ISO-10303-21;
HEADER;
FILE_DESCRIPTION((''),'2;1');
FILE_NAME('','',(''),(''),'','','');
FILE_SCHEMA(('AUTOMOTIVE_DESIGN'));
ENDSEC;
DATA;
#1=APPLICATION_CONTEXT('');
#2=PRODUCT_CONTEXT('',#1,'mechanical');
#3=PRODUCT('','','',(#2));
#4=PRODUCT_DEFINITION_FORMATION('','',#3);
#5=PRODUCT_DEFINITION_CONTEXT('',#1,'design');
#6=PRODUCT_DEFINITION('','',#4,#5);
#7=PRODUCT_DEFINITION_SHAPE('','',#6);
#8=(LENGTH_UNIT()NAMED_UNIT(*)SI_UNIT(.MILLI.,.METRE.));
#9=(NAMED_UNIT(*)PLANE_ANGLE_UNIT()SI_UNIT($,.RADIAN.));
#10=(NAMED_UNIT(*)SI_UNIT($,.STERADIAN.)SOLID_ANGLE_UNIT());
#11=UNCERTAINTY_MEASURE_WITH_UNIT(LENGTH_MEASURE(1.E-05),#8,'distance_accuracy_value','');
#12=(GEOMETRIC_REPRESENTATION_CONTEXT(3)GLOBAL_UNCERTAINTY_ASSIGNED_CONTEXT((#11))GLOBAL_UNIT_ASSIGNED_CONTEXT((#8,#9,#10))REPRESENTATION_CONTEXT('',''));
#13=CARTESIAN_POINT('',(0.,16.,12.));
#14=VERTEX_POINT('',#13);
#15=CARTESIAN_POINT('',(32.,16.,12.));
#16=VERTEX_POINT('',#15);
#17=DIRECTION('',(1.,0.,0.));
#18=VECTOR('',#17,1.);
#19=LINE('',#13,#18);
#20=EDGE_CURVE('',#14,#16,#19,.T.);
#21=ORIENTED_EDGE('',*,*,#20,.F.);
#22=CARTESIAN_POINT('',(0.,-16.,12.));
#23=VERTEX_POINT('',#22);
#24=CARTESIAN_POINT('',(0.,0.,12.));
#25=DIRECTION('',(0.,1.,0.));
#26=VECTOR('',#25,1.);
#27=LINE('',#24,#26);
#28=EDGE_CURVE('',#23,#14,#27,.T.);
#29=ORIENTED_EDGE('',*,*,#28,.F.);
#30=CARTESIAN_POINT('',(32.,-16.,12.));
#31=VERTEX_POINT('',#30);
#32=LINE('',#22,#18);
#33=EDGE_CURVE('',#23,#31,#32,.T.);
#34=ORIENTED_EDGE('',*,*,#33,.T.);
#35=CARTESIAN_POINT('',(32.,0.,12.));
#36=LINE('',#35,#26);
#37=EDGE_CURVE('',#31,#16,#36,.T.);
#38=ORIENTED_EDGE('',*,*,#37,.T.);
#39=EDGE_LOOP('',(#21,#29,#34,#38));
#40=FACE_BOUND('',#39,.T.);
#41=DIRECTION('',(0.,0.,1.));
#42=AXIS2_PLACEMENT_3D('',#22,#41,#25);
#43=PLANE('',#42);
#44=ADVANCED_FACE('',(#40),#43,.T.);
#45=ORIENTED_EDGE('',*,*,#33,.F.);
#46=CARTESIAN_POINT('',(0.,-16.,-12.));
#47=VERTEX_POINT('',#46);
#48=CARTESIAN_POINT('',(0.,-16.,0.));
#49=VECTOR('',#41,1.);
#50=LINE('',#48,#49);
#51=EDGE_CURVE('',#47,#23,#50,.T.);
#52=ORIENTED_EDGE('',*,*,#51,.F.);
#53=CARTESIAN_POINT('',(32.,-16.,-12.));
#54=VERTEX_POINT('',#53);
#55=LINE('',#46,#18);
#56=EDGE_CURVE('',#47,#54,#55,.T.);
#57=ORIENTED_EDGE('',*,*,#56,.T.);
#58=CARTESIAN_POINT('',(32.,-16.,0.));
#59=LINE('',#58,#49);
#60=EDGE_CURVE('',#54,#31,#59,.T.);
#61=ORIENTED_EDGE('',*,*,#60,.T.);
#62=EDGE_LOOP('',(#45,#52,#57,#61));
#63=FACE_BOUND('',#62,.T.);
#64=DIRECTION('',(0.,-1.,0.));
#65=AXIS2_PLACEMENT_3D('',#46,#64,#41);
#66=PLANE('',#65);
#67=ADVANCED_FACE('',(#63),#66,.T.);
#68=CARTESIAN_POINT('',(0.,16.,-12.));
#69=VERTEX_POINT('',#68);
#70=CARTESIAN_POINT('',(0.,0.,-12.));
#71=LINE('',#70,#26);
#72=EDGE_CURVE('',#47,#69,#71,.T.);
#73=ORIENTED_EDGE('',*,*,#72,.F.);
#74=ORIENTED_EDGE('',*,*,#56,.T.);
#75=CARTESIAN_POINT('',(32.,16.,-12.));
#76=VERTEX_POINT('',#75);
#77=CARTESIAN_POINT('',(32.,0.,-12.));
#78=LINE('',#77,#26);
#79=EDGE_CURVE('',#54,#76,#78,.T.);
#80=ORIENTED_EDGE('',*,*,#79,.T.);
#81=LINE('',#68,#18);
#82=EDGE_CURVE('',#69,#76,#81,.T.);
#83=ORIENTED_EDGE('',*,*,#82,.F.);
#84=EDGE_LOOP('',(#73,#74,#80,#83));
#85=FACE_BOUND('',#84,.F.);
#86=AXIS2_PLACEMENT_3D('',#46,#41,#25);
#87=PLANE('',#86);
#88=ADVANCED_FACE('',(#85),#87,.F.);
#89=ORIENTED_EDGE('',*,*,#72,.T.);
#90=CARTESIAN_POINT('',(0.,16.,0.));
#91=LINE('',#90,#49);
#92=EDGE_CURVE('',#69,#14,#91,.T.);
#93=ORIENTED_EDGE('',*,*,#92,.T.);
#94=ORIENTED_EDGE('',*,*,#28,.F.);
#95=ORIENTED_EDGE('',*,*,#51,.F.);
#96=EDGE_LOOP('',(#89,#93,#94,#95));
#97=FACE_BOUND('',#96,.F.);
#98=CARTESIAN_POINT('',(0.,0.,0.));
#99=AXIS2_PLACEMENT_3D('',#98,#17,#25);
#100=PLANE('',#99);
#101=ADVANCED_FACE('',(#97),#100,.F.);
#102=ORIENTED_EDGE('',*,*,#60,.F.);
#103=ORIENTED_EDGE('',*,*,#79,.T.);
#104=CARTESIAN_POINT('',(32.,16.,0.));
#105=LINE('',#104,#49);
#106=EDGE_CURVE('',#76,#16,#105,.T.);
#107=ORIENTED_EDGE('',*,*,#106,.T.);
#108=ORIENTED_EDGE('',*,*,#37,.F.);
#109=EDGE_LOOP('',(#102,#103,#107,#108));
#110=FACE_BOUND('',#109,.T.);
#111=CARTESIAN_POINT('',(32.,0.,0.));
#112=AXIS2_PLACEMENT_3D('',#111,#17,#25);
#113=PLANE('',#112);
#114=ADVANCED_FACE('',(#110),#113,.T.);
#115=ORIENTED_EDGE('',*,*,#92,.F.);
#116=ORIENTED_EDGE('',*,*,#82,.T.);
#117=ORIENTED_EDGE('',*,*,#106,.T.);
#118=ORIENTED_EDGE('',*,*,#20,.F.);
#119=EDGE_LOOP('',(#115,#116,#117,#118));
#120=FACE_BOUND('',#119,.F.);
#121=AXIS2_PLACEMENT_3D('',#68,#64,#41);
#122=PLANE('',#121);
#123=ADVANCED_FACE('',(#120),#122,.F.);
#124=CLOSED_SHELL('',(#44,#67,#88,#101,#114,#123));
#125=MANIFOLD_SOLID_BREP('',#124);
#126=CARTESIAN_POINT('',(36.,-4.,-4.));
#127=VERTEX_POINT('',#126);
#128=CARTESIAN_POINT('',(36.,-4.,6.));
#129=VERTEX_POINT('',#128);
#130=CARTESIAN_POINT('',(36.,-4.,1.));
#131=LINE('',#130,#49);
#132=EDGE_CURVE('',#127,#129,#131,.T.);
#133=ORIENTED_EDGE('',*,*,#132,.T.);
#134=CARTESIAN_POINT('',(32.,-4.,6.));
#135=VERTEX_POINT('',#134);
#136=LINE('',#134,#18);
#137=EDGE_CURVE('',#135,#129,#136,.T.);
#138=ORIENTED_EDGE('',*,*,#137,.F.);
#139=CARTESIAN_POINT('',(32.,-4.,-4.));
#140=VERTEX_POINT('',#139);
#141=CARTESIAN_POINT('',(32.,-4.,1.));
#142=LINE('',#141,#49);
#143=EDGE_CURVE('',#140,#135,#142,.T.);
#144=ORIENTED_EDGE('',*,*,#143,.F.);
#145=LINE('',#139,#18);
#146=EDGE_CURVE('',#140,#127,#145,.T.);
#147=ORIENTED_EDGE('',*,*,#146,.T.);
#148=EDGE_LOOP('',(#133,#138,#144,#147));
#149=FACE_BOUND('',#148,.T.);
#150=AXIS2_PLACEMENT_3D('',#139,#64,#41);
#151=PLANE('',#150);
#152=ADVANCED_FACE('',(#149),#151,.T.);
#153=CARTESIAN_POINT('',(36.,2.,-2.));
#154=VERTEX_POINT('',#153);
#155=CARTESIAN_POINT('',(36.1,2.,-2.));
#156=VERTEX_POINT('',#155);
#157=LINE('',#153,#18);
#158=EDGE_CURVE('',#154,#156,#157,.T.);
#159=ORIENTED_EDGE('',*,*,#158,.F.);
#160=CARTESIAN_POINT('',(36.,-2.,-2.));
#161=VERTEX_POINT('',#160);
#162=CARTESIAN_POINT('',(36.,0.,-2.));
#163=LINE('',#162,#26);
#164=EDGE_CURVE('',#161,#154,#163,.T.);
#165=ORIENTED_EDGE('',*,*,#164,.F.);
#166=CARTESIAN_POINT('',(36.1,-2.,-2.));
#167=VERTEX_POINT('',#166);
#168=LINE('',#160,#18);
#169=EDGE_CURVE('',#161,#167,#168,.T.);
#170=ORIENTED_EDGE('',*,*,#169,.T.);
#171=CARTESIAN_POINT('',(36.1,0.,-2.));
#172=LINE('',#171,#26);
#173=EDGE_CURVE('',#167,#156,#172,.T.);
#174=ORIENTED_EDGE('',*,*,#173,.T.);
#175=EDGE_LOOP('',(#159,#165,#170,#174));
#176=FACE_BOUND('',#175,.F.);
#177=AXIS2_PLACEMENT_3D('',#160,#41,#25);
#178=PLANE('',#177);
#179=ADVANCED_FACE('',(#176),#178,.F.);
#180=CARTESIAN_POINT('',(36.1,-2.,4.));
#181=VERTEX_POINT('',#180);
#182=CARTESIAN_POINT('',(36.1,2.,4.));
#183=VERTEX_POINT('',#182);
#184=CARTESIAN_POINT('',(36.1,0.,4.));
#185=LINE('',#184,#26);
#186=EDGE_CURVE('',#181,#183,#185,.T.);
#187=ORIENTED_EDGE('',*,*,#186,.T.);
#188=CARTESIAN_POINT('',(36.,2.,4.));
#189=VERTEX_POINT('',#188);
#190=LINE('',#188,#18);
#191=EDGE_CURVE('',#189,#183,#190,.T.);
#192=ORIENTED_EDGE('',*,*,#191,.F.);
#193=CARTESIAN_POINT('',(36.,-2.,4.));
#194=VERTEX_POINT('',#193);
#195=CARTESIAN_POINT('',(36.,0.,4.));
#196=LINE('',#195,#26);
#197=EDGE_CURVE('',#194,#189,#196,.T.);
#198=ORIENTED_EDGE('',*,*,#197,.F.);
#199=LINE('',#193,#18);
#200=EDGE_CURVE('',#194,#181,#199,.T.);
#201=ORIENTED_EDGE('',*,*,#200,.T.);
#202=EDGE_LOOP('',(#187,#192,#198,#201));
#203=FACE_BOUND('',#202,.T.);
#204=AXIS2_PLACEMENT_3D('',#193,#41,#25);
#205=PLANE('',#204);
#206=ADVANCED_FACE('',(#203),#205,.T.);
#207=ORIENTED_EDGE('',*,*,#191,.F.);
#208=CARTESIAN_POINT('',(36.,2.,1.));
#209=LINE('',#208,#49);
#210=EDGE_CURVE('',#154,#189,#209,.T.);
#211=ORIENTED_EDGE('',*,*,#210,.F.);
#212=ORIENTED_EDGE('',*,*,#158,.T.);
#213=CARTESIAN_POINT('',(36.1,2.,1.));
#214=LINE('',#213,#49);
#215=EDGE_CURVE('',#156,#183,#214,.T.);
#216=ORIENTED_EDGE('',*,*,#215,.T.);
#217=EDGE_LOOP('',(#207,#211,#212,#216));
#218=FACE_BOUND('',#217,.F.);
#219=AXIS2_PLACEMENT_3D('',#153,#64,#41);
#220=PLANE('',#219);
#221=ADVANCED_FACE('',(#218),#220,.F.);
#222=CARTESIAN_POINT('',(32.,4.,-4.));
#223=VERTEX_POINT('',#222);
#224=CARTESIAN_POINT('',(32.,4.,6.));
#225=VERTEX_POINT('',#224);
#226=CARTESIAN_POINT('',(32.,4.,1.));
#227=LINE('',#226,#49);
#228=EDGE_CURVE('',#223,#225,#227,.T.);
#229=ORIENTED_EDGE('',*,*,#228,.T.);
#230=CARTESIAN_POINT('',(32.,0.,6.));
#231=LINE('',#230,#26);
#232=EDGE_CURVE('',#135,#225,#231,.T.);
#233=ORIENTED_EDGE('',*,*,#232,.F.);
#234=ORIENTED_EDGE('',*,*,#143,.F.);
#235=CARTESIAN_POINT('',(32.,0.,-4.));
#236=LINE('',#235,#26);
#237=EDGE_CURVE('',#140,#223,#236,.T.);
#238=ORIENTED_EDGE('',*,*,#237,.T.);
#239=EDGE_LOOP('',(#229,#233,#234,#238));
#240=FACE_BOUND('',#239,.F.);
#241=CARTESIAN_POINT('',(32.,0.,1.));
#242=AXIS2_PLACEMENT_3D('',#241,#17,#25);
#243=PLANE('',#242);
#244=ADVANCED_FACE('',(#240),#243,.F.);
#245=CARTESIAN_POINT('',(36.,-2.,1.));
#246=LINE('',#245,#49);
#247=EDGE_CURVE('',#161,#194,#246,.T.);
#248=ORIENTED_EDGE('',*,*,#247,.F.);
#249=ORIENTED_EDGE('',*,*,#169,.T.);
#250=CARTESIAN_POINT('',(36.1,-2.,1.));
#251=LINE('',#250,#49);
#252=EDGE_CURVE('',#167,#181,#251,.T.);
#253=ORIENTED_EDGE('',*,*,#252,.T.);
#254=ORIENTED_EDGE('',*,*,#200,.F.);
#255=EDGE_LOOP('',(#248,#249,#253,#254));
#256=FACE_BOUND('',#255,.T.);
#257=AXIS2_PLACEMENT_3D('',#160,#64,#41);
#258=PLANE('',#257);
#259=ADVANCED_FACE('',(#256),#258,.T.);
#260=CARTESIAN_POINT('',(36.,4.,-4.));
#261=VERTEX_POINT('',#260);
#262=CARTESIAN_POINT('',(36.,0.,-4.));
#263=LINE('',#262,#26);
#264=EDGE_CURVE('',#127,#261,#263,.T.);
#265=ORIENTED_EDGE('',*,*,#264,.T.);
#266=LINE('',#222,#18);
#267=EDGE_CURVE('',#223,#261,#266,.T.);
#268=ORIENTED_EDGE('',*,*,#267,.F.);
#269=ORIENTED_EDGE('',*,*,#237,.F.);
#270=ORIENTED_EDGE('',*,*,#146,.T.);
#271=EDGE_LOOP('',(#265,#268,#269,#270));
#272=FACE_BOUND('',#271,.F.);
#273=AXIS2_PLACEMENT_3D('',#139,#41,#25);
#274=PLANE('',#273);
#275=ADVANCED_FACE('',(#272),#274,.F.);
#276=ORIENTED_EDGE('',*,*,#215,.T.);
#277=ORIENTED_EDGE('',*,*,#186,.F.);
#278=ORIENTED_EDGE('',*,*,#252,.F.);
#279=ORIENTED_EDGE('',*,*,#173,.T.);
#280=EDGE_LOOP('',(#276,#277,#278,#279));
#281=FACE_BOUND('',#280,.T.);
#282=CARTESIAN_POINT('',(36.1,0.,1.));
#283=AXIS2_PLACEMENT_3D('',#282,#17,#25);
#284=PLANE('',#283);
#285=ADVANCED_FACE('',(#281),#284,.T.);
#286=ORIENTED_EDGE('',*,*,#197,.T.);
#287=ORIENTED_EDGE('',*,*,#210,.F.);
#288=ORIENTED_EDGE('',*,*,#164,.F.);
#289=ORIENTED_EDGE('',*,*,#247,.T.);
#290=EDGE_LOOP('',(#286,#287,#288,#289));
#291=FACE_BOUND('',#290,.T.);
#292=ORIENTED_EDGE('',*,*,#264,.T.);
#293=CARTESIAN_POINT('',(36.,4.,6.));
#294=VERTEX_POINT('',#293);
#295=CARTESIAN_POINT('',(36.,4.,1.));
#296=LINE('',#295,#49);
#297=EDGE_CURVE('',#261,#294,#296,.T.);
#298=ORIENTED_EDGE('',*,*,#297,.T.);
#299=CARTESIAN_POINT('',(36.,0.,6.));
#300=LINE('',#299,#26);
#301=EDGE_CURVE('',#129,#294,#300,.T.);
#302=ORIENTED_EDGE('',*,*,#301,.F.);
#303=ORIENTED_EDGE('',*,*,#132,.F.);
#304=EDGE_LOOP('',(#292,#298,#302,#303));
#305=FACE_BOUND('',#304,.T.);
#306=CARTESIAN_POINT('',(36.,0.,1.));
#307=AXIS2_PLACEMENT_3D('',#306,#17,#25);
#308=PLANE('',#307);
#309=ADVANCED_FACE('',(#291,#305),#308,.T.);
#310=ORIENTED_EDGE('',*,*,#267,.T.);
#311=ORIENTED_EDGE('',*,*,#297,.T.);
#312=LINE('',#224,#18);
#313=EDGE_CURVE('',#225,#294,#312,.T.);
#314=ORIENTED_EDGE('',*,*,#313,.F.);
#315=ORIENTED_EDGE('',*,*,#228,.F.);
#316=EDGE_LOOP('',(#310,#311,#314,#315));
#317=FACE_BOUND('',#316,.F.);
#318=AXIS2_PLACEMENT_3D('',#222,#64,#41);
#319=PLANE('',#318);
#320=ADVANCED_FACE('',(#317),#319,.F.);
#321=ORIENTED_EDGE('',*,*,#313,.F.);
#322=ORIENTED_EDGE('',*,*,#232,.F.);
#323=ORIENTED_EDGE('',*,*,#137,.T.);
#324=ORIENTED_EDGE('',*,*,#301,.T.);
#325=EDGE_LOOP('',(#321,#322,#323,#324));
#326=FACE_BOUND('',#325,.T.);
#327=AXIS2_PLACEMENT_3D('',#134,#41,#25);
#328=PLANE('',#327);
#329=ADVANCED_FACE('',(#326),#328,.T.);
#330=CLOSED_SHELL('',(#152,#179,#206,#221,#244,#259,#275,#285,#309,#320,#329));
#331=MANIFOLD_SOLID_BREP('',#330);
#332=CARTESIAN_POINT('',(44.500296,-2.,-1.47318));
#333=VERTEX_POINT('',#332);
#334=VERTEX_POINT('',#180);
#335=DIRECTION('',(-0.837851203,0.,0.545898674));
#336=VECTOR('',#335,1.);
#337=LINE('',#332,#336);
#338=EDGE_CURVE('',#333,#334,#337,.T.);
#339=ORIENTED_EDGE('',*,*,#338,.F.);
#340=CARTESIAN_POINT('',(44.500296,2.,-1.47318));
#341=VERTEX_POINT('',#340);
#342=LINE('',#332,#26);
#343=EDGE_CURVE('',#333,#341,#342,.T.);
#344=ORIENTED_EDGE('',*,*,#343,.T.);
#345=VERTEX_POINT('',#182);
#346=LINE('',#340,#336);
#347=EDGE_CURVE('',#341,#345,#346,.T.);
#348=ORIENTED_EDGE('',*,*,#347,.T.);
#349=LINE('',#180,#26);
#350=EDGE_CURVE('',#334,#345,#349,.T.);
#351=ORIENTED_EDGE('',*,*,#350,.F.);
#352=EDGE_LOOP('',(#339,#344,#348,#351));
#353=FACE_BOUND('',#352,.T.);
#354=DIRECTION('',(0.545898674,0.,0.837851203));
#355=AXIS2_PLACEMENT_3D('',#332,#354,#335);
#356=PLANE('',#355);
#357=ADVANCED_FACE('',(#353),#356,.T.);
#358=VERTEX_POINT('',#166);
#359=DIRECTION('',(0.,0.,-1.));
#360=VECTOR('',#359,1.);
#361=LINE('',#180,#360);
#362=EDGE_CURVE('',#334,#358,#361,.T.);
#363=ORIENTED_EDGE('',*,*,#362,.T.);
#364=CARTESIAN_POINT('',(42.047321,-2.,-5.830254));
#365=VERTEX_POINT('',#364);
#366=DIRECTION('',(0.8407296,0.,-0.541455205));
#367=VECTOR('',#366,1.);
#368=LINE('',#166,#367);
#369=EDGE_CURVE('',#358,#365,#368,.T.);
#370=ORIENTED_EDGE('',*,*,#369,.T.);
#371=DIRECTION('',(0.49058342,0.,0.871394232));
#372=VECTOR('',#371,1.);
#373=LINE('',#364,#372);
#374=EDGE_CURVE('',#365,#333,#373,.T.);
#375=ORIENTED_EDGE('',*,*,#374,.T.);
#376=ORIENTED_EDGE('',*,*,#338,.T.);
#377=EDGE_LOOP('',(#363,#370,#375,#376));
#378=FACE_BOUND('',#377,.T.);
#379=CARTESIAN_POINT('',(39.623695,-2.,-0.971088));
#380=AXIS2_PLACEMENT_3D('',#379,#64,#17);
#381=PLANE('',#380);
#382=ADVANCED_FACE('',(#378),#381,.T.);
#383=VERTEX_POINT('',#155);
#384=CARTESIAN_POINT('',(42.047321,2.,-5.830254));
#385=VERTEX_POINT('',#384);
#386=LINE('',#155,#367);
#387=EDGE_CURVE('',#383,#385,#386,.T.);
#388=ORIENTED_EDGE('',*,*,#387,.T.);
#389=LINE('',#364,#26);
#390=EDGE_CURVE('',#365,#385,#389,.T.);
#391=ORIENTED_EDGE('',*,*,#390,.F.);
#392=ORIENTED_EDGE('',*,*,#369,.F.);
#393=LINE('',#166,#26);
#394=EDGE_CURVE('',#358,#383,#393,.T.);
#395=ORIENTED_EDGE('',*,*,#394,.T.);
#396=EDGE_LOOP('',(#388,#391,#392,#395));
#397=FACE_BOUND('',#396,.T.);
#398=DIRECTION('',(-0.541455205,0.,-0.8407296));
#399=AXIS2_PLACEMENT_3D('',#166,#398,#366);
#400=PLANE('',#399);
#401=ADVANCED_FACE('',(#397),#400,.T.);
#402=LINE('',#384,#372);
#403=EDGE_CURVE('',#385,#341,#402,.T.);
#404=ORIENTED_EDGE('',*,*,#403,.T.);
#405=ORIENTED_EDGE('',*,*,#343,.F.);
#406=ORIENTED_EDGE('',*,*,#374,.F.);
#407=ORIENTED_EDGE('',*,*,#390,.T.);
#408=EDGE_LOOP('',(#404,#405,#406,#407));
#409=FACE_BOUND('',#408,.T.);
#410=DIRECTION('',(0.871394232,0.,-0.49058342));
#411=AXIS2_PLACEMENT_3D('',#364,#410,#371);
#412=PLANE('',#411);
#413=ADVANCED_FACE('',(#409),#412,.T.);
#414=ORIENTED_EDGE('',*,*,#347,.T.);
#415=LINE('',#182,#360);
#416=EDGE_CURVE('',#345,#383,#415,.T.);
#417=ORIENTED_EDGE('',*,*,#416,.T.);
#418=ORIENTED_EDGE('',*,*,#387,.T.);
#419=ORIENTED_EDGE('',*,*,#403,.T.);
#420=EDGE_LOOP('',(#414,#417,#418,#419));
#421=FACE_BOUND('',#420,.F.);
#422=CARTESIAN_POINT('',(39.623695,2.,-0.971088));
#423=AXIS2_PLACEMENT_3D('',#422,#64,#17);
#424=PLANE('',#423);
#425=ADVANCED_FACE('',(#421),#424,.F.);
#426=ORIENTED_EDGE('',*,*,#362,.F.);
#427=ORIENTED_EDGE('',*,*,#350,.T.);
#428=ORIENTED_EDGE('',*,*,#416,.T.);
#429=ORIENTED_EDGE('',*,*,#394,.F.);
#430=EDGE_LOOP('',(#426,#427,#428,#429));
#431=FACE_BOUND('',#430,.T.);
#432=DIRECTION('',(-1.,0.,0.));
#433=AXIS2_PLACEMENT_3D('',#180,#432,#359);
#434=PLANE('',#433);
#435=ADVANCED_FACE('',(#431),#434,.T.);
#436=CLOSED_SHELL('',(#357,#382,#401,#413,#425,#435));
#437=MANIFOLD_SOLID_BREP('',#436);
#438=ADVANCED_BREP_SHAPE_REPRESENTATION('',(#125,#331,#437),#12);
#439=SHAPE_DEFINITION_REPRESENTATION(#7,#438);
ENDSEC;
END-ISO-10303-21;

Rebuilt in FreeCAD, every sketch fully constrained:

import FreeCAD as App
import Part
import Sketcher

V = App.Vector


def add_polygon(sketch, points):
    """Adds a closed chain of lines whose ends are joined by coincident constraints."""
    first, n = sketch.GeometryCount, len(points)
    for a, b in zip(points, points[1:] + points[:1]):
        sketch.addGeometry(Part.LineSegment(App.Vector(*a, 0), App.Vector(*b, 0)), False)
    for i in range(n):
        sketch.addConstraint(Sketcher.Constraint("Coincident", first + i, 2, first + (i + 1) % n, 1))

doc = App.newDocument("Part")
params = doc.addObject("Spreadsheet::Sheet", "Params")
for row, (alias, value) in enumerate([
    ("sketch1_width", "32 mm"),
    ("sketch1_height", "24 mm"),
    ("pad1_length", "32 mm"),
    ("sketch2_width", "8 mm"),
    ("sketch2_height", "10 mm"),
    ("pad2_length", "4 mm"),
    ("sketch3_width", "4 mm"),
    ("sketch3_height", "6 mm"),
    ("pad3_length", "0.1 mm"),
    ("sketch4_height", "6 mm"),
    ("pad4_length", "4 mm"),
], start=1):
    params.set(f"A{row}", alias)
    params.set(f"B{row}", "=" + value)
    params.setAlias(f"B{row}", alias)

body = doc.addObject("PartDesign::Body", "Body")

# Sketch on YZ plane
sketch1 = body.newObject("Sketcher::SketchObject", "Sketch")
sketch1.AttachmentSupport = (doc.getObject("YZ_Plane"), [""])
sketch1.MapMode = "FlatFace"
add_polygon(sketch1, [(-16, 12), (-16, -12), (16, -12), (16, 12)])  # lines 0-3
sketch1.addConstraint([
    Sketcher.Constraint("Vertical", 0),
    Sketcher.Constraint("Horizontal", 1),
    Sketcher.Constraint("Vertical", 2),
    Sketcher.Constraint("Horizontal", 3),
    Sketcher.Constraint("Symmetric", 0, 2, 2, 2, -1, 1),
    Sketcher.Constraint("DistanceX", 1, 1, 1, 2, 32.0),
    Sketcher.Constraint("DistanceY", 0, 2, 0, 1, 24.0),
])
sketch1.setExpression("Constraints[9]", "Params.sketch1_width")
sketch1.setExpression("Constraints[10]", "Params.sketch1_height")
pad1 = body.newObject("PartDesign::Pad", "Pad")
pad1.Profile = sketch1
pad1.setExpression("Length", "Params.pad1_length")
body2 = doc.addObject("PartDesign::Body", "Body001")

# Sketch on YZ plane
sketch2 = body2.newObject("Sketcher::SketchObject", "Sketch001")
sketch2.AttachmentSupport = (doc.getObject("YZ_Plane001"), [""])
sketch2.MapMode = "FlatFace"
sketch2.AttachmentOffset = App.Placement(V(0, 0, 32), App.Rotation())
add_polygon(sketch2, [(-4, 6), (-4, -4), (4, -4), (4, 6)])  # lines 0-3
sketch2.addConstraint([
    Sketcher.Constraint("Vertical", 0),
    Sketcher.Constraint("Horizontal", 1),
    Sketcher.Constraint("Vertical", 2),
    Sketcher.Constraint("Horizontal", 3),
    Sketcher.Constraint("DistanceX", 1, 1, 1, 2, 8.0),
    Sketcher.Constraint("DistanceY", 0, 2, 0, 1, 10.0),
    Sketcher.Constraint("DistanceX", 0, 2, -1, 1, 4.0),
    Sketcher.Constraint("DistanceY", 0, 2, -1, 1, 4.0),
])
sketch2.setExpression("Constraints[8]", "Params.sketch2_width")
sketch2.setExpression("Constraints[9]", "Params.sketch2_height")
pad2 = body2.newObject("PartDesign::Pad", "Pad001")
pad2.Profile = sketch2
pad2.setExpression("Length", "Params.pad2_length")

# Sketch on YZ plane
sketch3 = body2.newObject("Sketcher::SketchObject", "Sketch002")
sketch3.AttachmentSupport = (doc.getObject("YZ_Plane001"), [""])
sketch3.MapMode = "FlatFace"
sketch3.AttachmentOffset = App.Placement(V(0, 0, 36), App.Rotation())
add_polygon(sketch3, [(-2, 4), (-2, -2), (2, -2), (2, 4)])  # lines 0-3
sketch3.addConstraint([
    Sketcher.Constraint("Vertical", 0),
    Sketcher.Constraint("Horizontal", 1),
    Sketcher.Constraint("Vertical", 2),
    Sketcher.Constraint("Horizontal", 3),
    Sketcher.Constraint("DistanceX", 1, 1, 1, 2, 4.0),
    Sketcher.Constraint("DistanceY", 0, 2, 0, 1, 6.0),
    Sketcher.Constraint("DistanceX", 0, 2, -1, 1, 2.0),
    Sketcher.Constraint("DistanceY", 0, 2, -1, 1, 2.0),
])
sketch3.setExpression("Constraints[8]", "Params.sketch3_width")
sketch3.setExpression("Constraints[9]", "Params.sketch3_height")
pad3 = body2.newObject("PartDesign::Pad", "Pad002")
pad3.Profile = sketch3
pad3.setExpression("Length", "Params.pad3_length")
body3 = doc.addObject("PartDesign::Body", "Body002")

# Sketch on XZ plane
sketch4 = body3.newObject("Sketcher::SketchObject", "Sketch003")
sketch4.AttachmentSupport = (doc.getObject("XZ_Plane002"), [""])
sketch4.MapMode = "FlatFace"
sketch4.AttachmentOffset = App.Placement(V(0, 0, 2), App.Rotation())
add_polygon(sketch4, [(45, -1), (36, 4), (36, -2), (42, -6)])  # lines 0-3
sketch4.addConstraint([
    Sketcher.Constraint("Vertical", 1),
    Sketcher.Constraint("DistanceY", 1, 2, 1, 1, 6.0),
    Sketcher.Constraint("DistanceY", -1, 1, 0, 2, 4.0),
    Sketcher.Constraint("DistanceX", -1, 1, 0, 2, 36.1),
    Sketcher.Constraint("Distance", 0, 10.026),
    Sketcher.Constraint("Distance", 2, 7.074),
    Sketcher.Constraint("Distance", 3, 5.000118),
    Sketcher.Constraint("DistanceX", -1, 1, 2, 2, 42.047321),
])
sketch4.setExpression("Constraints[5]", "Params.sketch4_height")
pad4 = body3.newObject("PartDesign::Pad", "Pad003")
pad4.Profile = sketch4
pad4.setExpression("Length", "Params.pad4_length")
pad4.Reversed = True

doc.recompute()
